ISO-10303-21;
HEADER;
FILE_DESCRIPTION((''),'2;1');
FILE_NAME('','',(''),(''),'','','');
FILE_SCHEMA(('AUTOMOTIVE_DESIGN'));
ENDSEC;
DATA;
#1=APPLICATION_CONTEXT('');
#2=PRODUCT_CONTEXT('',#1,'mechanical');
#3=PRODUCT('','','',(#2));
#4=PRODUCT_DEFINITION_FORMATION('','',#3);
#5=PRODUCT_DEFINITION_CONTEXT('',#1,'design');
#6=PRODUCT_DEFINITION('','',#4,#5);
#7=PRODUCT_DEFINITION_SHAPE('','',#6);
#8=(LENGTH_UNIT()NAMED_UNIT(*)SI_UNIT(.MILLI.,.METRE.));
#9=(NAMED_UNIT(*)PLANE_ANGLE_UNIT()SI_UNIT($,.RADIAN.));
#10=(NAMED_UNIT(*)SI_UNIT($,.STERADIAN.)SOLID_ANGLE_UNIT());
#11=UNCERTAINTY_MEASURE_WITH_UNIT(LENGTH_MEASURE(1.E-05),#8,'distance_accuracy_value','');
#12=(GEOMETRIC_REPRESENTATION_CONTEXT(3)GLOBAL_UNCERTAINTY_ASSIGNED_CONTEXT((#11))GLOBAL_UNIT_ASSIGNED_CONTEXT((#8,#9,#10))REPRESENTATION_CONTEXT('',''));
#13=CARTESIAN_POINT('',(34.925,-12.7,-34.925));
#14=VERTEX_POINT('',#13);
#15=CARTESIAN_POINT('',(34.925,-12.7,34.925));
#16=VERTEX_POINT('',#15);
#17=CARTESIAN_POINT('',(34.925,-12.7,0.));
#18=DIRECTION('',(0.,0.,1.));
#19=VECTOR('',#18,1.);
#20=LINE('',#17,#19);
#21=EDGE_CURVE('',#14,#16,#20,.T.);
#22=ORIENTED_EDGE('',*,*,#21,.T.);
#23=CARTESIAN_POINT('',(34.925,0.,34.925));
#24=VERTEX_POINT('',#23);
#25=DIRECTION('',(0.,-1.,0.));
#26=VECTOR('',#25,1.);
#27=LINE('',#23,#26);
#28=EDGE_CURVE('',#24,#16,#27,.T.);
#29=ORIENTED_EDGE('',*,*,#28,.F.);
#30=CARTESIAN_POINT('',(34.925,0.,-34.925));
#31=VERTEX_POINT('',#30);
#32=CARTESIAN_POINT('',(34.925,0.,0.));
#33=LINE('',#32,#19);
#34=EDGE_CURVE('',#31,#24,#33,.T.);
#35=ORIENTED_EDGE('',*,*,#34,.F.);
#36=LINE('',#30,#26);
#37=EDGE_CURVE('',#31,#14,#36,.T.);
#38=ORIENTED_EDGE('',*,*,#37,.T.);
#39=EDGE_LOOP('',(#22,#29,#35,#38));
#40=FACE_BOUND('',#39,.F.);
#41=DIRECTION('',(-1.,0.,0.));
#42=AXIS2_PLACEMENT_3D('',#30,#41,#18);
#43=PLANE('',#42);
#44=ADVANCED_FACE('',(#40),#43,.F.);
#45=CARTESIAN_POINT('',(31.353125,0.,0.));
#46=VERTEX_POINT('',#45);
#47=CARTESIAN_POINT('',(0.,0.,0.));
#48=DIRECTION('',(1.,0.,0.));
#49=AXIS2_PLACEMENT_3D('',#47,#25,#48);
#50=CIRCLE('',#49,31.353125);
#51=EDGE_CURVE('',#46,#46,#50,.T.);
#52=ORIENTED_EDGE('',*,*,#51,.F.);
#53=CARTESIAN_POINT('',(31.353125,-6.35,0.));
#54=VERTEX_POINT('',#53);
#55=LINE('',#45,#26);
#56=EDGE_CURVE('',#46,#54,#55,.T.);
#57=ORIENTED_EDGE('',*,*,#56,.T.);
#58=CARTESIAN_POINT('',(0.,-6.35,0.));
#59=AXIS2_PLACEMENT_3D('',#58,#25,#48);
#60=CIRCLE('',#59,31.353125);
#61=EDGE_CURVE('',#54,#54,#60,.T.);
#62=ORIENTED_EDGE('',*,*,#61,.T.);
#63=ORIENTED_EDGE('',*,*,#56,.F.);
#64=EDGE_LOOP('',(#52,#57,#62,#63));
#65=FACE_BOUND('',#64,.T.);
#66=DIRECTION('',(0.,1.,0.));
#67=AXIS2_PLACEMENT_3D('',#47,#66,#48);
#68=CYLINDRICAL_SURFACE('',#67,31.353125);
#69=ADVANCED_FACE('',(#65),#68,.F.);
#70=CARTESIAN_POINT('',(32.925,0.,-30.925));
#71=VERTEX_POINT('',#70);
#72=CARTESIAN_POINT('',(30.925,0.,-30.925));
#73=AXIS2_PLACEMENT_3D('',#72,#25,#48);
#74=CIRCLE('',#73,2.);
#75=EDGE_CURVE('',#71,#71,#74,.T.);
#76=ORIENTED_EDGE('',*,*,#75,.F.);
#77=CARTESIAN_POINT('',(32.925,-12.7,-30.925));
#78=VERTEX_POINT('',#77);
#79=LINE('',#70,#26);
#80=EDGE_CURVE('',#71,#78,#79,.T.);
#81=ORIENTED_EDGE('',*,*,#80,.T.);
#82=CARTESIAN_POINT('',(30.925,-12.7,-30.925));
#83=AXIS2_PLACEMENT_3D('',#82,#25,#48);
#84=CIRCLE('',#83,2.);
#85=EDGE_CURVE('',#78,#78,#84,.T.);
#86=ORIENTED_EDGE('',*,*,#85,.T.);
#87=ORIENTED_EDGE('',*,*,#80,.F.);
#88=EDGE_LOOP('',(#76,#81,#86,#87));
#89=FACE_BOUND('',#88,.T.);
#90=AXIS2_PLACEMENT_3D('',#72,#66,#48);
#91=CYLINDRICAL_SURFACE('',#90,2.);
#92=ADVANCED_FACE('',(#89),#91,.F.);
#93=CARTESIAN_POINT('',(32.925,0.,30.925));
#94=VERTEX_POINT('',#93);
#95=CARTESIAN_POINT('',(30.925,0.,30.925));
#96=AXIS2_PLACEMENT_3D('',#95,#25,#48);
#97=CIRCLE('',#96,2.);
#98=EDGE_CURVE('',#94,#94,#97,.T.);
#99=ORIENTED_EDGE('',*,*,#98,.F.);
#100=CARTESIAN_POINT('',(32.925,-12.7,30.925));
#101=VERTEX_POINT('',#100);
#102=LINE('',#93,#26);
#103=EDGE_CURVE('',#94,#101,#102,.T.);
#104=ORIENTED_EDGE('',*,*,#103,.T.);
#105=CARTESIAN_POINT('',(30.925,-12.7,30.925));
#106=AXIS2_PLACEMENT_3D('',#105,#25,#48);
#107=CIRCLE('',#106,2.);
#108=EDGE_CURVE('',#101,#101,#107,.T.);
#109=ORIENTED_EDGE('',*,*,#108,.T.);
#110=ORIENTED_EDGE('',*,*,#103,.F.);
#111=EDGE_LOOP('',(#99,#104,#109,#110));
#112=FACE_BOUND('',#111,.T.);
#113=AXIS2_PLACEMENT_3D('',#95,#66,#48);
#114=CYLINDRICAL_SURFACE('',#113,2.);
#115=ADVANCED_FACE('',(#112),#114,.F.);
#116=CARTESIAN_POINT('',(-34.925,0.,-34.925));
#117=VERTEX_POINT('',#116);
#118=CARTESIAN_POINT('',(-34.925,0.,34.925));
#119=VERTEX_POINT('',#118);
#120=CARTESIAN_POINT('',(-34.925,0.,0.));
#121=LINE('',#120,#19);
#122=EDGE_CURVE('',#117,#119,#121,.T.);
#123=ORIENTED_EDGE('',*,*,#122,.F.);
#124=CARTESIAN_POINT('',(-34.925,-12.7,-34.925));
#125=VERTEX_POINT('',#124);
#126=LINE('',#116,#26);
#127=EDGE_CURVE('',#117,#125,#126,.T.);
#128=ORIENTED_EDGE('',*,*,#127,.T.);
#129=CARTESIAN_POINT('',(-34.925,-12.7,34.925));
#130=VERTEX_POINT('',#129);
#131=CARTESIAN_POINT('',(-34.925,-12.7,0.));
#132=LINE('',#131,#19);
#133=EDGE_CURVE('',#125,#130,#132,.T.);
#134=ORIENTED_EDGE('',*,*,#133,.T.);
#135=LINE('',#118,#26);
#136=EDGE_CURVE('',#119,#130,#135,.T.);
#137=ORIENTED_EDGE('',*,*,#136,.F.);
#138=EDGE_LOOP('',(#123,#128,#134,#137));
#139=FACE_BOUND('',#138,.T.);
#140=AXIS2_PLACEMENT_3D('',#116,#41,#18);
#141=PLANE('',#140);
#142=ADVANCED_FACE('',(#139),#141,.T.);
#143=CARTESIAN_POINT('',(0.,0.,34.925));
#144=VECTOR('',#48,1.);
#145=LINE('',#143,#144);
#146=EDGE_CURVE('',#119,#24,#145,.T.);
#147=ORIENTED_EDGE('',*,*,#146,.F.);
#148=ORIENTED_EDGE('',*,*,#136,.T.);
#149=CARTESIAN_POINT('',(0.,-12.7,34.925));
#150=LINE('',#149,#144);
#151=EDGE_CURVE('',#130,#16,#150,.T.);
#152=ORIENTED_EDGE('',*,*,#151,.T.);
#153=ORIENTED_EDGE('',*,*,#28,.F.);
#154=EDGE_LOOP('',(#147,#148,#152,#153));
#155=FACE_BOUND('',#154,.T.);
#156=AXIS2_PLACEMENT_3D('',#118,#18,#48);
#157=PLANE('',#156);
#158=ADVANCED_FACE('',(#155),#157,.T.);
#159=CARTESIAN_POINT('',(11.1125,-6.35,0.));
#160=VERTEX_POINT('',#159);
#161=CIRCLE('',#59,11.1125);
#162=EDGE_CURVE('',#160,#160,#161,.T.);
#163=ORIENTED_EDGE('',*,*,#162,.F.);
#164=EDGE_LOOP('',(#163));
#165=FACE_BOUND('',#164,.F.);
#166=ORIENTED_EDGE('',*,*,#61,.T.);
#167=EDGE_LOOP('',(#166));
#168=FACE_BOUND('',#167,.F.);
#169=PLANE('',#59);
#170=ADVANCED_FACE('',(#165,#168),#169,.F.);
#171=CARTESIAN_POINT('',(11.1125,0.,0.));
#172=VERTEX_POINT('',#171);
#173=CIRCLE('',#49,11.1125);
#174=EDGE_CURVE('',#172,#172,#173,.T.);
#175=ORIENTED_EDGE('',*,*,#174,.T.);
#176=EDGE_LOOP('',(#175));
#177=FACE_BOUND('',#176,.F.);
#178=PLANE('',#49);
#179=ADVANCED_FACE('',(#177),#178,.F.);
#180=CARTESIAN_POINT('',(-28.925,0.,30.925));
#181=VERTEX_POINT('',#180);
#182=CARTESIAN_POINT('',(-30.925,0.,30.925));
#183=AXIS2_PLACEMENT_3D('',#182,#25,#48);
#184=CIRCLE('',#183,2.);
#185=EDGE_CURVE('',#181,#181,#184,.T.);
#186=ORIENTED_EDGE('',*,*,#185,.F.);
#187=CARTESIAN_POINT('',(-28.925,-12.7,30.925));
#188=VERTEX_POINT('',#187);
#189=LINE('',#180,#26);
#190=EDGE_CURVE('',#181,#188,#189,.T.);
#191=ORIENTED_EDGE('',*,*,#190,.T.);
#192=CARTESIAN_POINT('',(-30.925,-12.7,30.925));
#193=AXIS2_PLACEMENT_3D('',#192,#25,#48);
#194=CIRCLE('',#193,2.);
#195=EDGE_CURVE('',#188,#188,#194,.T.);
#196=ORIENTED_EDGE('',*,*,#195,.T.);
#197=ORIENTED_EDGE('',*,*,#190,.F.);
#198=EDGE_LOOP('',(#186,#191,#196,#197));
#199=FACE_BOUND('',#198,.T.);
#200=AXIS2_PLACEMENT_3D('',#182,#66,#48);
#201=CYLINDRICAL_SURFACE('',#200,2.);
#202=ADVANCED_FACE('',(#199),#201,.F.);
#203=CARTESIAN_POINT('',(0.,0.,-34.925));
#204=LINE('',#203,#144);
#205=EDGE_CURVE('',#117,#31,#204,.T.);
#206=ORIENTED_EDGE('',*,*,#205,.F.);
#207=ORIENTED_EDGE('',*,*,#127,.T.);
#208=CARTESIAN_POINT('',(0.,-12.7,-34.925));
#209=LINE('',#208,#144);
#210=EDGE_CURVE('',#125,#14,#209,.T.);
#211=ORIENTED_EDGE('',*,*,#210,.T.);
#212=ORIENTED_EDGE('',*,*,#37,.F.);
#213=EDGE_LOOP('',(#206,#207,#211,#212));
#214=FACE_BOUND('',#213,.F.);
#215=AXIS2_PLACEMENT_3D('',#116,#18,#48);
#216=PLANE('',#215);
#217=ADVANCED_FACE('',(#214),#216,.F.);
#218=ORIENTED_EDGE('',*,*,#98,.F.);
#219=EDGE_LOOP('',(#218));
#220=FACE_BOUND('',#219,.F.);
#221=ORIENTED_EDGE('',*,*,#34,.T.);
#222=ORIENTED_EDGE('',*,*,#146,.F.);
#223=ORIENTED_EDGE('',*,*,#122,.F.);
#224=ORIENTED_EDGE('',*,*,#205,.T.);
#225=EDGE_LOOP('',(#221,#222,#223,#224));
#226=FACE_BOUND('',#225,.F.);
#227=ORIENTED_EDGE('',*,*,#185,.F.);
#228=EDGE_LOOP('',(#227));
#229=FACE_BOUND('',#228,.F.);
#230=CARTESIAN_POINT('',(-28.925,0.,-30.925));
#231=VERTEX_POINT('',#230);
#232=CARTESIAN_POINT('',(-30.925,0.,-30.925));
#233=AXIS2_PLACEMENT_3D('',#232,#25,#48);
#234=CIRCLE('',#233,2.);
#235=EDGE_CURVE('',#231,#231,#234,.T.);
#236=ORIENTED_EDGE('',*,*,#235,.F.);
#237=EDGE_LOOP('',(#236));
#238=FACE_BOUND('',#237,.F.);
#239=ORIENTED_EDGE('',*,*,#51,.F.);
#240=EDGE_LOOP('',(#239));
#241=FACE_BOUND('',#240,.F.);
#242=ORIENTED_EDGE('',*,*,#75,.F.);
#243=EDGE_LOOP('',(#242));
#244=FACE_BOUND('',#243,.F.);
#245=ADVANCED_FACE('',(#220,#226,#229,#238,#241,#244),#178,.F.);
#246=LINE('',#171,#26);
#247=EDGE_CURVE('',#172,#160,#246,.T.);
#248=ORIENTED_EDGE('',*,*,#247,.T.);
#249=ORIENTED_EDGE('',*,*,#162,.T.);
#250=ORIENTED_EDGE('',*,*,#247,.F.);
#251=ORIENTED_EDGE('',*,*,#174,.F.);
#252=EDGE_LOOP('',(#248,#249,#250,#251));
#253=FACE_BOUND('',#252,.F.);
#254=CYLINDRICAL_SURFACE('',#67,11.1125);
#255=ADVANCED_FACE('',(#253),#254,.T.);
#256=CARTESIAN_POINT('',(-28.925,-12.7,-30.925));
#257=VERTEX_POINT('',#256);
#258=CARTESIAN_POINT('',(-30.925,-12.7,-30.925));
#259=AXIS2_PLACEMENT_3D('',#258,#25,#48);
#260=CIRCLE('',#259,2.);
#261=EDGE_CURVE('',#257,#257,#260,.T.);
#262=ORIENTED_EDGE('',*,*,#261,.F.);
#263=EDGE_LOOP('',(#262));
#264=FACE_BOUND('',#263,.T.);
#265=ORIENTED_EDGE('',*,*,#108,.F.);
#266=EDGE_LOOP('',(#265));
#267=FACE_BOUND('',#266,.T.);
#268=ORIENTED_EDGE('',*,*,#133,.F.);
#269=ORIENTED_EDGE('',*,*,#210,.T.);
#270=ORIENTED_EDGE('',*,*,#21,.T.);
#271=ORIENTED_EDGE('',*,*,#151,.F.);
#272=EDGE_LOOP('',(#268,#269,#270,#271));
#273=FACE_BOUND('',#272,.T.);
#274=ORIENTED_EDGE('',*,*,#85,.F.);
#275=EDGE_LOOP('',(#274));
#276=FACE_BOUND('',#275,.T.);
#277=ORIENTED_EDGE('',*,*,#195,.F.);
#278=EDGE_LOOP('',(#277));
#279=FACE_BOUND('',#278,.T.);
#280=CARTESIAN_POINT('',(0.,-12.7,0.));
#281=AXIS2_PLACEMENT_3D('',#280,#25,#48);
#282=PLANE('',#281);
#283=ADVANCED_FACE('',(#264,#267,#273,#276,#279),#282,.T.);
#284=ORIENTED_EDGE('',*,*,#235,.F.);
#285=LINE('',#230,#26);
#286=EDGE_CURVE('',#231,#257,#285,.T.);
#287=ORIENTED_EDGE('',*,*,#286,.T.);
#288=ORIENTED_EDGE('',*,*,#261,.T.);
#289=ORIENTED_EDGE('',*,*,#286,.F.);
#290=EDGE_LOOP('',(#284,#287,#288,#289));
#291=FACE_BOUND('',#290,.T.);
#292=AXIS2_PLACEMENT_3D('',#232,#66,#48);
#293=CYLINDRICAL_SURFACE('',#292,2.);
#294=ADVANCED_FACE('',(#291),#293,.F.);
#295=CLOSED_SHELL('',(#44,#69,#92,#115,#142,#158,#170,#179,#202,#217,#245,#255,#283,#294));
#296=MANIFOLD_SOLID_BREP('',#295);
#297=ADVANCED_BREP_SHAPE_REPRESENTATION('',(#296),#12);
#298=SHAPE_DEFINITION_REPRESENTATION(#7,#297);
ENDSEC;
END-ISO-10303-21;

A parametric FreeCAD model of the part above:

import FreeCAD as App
import Part
import Sketcher
from FreeCAD import Vector
Q = App.Units.Quantity

doc = App.newDocument("Part")
body = doc.addObject("PartDesign::Body", "Body")

# Sketch on XZ plane
sketch1 = doc.addObject("Sketcher::SketchObject", "Sketch")
body.addObject(sketch1)
sketch1.AttachmentSupport = (doc.XZ_Plane, [""])
sketch1.MapMode = "FlatFace"
sketch1.addGeometry([
    Part.LineSegment(Vector(-34.9, 34.9, 0), Vector(-34.9, -34.9, 0)),  # 0
    Part.LineSegment(Vector(-34.9, -34.9, 0), Vector(34.9, -34.9, 0)),  # 1
    Part.LineSegment(Vector(34.9, -34.9, 0), Vector(34.9, 34.9, 0)),  # 2
    Part.LineSegment(Vector(34.9, 34.9, 0), Vector(-34.9, 34.9, 0)),  # 3
    Part.Circle(Vector(-30.9, -30.9, 0), Vector(0, 0, 1), 2),  # 4
    Part.Circle(Vector(30.9, -30.9, 0), Vector(0, 0, 1), 2),  # 5
    Part.Circle(Vector(-30.9, 30.9, 0), Vector(0, 0, 1), 2),  # 6
    Part.Circle(Vector(30.9, 30.9, 0), Vector(0, 0, 1), 2),  # 7
], False)
sketch1.addConstraint([
    Sketcher.Constraint("Coincident", 0, 2, 1, 1),
    Sketcher.Constraint("Coincident", 1, 2, 2, 1),
    Sketcher.Constraint("Coincident", 2, 2, 3, 1),
    Sketcher.Constraint("Coincident", 3, 2, 0, 1),
    Sketcher.Constraint("Vertical", 0),
    Sketcher.Constraint("Horizontal", 1),
    Sketcher.Constraint("Vertical", 2),
    Sketcher.Constraint("Horizontal", 3),
    Sketcher.Constraint("Equal", 4, 5),
    Sketcher.Constraint("Equal", 5, 6),
    Sketcher.Constraint("Equal", 6, 7),
    Sketcher.Constraint("Symmetric", 5, 3, 6, 3, -1, 1),
    Sketcher.Constraint("Symmetric", 4, 3, 7, 3, -1, 1),
    Sketcher.Constraint("Symmetric", 0, 2, 2, 2, -1, 1),
    Sketcher.Constraint("Symmetric", 4, 3, 5, 3, -2),
    Sketcher.Constraint("Equal", 3, 0),
    Sketcher.Constraint("DistanceX", 1, 1, 1, 2, Q("2.75 in")),
    Sketcher.Constraint("Diameter", 4, Q("4 mm")),
    Sketcher.Constraint("DistanceX", 4, 3, -1, 1, Q("30.925 mm")),
    Sketcher.Constraint("DistanceY", 4, 3, -1, 1, Q("30.925 mm")),
])
pad1 = doc.addObject("PartDesign::Pad", "Pad")
body.addObject(pad1)
pad1.Profile = sketch1
pad1.Length = Q("0.5 in")

# Sketch on XZ plane
sketch2 = doc.addObject("Sketcher::SketchObject", "Sketch001")
body.addObject(sketch2)
sketch2.AttachmentSupport = (doc.XZ_Plane, [""])
sketch2.MapMode = "FlatFace"
sketch2.addGeometry(Part.Circle(Vector(0, 0, 0), Vector(0, 0, 1), 31), False)
sketch2.addConstraint([
    Sketcher.Constraint("Coincident", 0, 3, -1, 1),
    Sketcher.Constraint("Diameter", 0, Q("2.46875 in")),
])
pocket1 = doc.addObject("PartDesign::Pocket", "Pocket")
body.addObject(pocket1)
pocket1.Profile = sketch2
pocket1.Length = Q("0.25 in")
pocket1.Reversed = True

# Sketch on XZ plane
sketch3 = doc.addObject("Sketcher::SketchObject", "Sketch002")
body.addObject(sketch3)
sketch3.AttachmentSupport = (doc.XZ_Plane, [""])
sketch3.MapMode = "FlatFace"
sketch3.addGeometry(Part.Circle(Vector(0, 0, 0), Vector(0, 0, 1), 11), False)
sketch3.addConstraint([
    Sketcher.Constraint("Coincident", 0, 3, -1, 1),
    Sketcher.Constraint("Diameter", 0, Q("0.875 in")),
])
pad2 = doc.addObject("PartDesign::Pad", "Pad001")
body.addObject(pad2)
pad2.Profile = sketch3
pad2.Length = Q("0.25 in")

doc.recompute()
